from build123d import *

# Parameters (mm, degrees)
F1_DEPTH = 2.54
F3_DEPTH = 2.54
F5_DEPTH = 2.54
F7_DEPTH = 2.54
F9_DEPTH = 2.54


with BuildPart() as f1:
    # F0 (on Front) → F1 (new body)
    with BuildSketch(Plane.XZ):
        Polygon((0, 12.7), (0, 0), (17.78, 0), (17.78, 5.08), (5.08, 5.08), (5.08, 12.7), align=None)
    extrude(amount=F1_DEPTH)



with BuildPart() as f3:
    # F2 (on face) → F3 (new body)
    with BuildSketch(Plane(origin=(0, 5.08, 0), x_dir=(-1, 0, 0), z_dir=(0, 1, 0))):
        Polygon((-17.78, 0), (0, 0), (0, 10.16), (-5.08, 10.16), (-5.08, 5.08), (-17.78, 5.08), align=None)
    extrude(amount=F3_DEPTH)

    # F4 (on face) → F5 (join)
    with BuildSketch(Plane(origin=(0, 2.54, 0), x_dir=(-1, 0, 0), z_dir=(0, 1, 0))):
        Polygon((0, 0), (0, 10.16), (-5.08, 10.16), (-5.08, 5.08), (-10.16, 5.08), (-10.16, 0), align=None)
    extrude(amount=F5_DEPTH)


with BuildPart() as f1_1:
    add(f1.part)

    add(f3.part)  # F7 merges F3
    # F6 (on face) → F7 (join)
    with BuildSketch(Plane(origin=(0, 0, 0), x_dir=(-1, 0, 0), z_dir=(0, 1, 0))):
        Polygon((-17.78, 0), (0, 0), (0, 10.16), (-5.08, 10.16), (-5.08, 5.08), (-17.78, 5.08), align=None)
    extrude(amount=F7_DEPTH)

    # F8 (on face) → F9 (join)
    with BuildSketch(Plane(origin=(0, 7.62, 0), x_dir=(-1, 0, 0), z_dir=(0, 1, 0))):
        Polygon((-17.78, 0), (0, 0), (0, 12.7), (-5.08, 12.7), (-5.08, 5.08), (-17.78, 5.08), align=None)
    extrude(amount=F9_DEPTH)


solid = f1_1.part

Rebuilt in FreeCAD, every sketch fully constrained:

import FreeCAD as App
import Part
import Sketcher
from FreeCAD import Vector
Q = App.Units.Quantity

doc = App.newDocument("Part")
body = doc.addObject("PartDesign::Body", "Body")

# Sketch on XZ plane
sketch1 = body.newObject("Sketcher::SketchObject", "Sketch")
sketch1.AttachmentSupport = (doc.getObject("XZ_Plane"), [""])
sketch1.MapMode = "FlatFace"
sketch1.addGeometry([
    Part.LineSegment(Vector(0, 13, 0), Vector(0, 0, 0)),  # 0
    Part.LineSegment(Vector(0, 0, 0), Vector(18, 0, 0)),  # 1
    Part.LineSegment(Vector(18, 0, 0), Vector(18, 5, 0)),  # 2
    Part.LineSegment(Vector(18, 5, 0), Vector(5, 5, 0)),  # 3
    Part.LineSegment(Vector(5, 5, 0), Vector(5, 13, 0)),  # 4
    Part.LineSegment(Vector(5, 13, 0), Vector(0, 13, 0)),  # 5
], False)
sketch1.addConstraint([
    Sketcher.Constraint("Coincident", 0, 2, 1, 1),
    Sketcher.Constraint("Coincident", 1, 2, 2, 1),
    Sketcher.Constraint("Coincident", 2, 2, 3, 1),
    Sketcher.Constraint("Coincident", 3, 2, 4, 1),
    Sketcher.Constraint("Coincident", 4, 2, 5, 1),
    Sketcher.Constraint("Coincident", 5, 2, 0, 1),
    Sketcher.Constraint("Vertical", 0),
    Sketcher.Constraint("Horizontal", 1),
    Sketcher.Constraint("Vertical", 2),
    Sketcher.Constraint("Horizontal", 3),
    Sketcher.Constraint("Vertical", 4),
    Sketcher.Constraint("Horizontal", 5),
    Sketcher.Constraint("Coincident", 0, 2, -1, 1),
    Sketcher.Constraint("Equal", 3, 0),
    Sketcher.Constraint("Equal", 5, 2),
    Sketcher.Constraint("DistanceX", 1, 1, 1, 2, Q("0.7 in")),
    Sketcher.Constraint("DistanceX", 3, 2, 3, 1, Q("0.5 in")),
])
pad1 = body.newObject("PartDesign::Pad", "Pad")
pad1.Profile = sketch1
pad1.Length = Q("0.1 in")
body2 = doc.addObject("PartDesign::Body", "Body001")

# Sketch on XZ plane
sketch2 = body2.newObject("Sketcher::SketchObject", "Sketch001")
sketch2.AttachmentSupport = (doc.getObject("XZ_Plane001"), [""])
sketch2.MapMode = "FlatFace"
sketch2.AttachmentOffset = App.Placement(Vector(0, 0, -0.2 * 25.4), App.Rotation())
sketch2.addGeometry([
    Part.LineSegment(Vector(18, 0, 0), Vector(0, 0, 0)),  # 0
    Part.LineSegment(Vector(0, 0, 0), Vector(0, 10, 0)),  # 1
    Part.LineSegment(Vector(0, 10, 0), Vector(5, 10, 0)),  # 2
    Part.LineSegment(Vector(5, 10, 0), Vector(5, 5, 0)),  # 3
    Part.LineSegment(Vector(5, 5, 0), Vector(18, 5, 0)),  # 4
    Part.LineSegment(Vector(18, 5, 0), Vector(18, 0, 0)),  # 5
], False)
sketch2.addConstraint([
    Sketcher.Constraint("Coincident", 0, 2, 1, 1),
    Sketcher.Constraint("Coincident", 1, 2, 2, 1),
    Sketcher.Constraint("Coincident", 2, 2, 3, 1),
    Sketcher.Constraint("Coincident", 3, 2, 4, 1),
    Sketcher.Constraint("Coincident", 4, 2, 5, 1),
    Sketcher.Constraint("Coincident", 5, 2, 0, 1),
    Sketcher.Constraint("Horizontal", 0),
    Sketcher.Constraint("Vertical", 1),
    Sketcher.Constraint("Horizontal", 2),
    Sketcher.Constraint("Vertical", 3),
    Sketcher.Constraint("Horizontal", 4),
    Sketcher.Constraint("Vertical", 5),
    Sketcher.Constraint("Coincident", 0, 2, -1, 1),
    Sketcher.Constraint("Equal", 2, 3),
    Sketcher.Constraint("Equal", 3, 5),
    Sketcher.Constraint("DistanceX", 0, 2, 0, 1, Q("0.7 in")),
    Sketcher.Constraint("DistanceX", 2, 1, 2, 2, Q("0.2 in")),
])
pad2 = body2.newObject("PartDesign::Pad", "Pad001")
pad2.Profile = sketch2
pad2.Length = Q("0.1 in")
pad2.Reversed = True

# Sketch on XZ plane
sketch3 = body2.newObject("Sketcher::SketchObject", "Sketch002")
sketch3.AttachmentSupport = (doc.getObject("XZ_Plane001"), [""])
sketch3.MapMode = "FlatFace"
sketch3.AttachmentOffset = App.Placement(Vector(0, 0, -0.1 * 25.4), App.Rotation())
sketch3.addGeometry([
    Part.LineSegment(Vector(0, 0, 0), Vector(0, 10, 0)),  # 0
    Part.LineSegment(Vector(0, 10, 0), Vector(5, 10, 0)),  # 1
    Part.LineSegment(Vector(5, 10, 0), Vector(5, 5, 0)),  # 2
    Part.LineSegment(Vector(5, 5, 0), Vector(10, 5, 0)),  # 3
    Part.LineSegment(Vector(10, 5, 0), Vector(10, 0, 0)),  # 4
    Part.LineSegment(Vector(10, 0, 0), Vector(0, 0, 0)),  # 5
], False)
sketch3.addConstraint([
    Sketcher.Constraint("Coincident", 0, 2, 1, 1),
    Sketcher.Constraint("Coincident", 1, 2, 2, 1),
    Sketcher.Constraint("Coincident", 2, 2, 3, 1),
    Sketcher.Constraint("Coincident", 3, 2, 4, 1),
    Sketcher.Constraint("Coincident", 4, 2, 5, 1),
    Sketcher.Constraint("Coincident", 5, 2, 0, 1),
    Sketcher.Constraint("Vertical", 0),
    Sketcher.Constraint("Horizontal", 1),
    Sketcher.Constraint("Vertical", 2),
    Sketcher.Constraint("Horizontal", 3),
    Sketcher.Constraint("Vertical", 4),
    Sketcher.Constraint("Horizontal", 5),
    Sketcher.Constraint("Coincident", 5, 2, -1, 1),
    Sketcher.Constraint("Equal", 1, 3),
    Sketcher.Constraint("Equal", 5, 0),
    Sketcher.Constraint("Equal", 3, 2),
    Sketcher.Constraint("DistanceX", 1, 1, 1, 2, Q("0.2 in")),
])
pad3 = body2.newObject("PartDesign::Pad", "Pad002")
pad3.Profile = sketch3
pad3.Length = Q("0.1 in")
pad3.Reversed = True
body.AllowCompound = True
doc.recompute()

boolean = body.newObject("PartDesign::Boolean", "Boolean")
boolean.Type = "Fuse"
boolean.addObjects([body2])

# Sketch on XZ plane
sketch4 = body.newObject("Sketcher::SketchObject", "Sketch003")
sketch4.AttachmentSupport = (doc.getObject("XZ_Plane"), [""])
sketch4.MapMode = "FlatFace"
sketch4.addGeometry([
    Part.LineSegment(Vector(18, 0, 0), Vector(0, 0, 0)),  # 0
    Part.LineSegment(Vector(0, 0, 0), Vector(0, 10, 0)),  # 1
    Part.LineSegment(Vector(0, 10, 0), Vector(5, 10, 0)),  # 2
    Part.LineSegment(Vector(5, 10, 0), Vector(5, 5, 0)),  # 3
    Part.LineSegment(Vector(5, 5, 0), Vector(18, 5, 0)),  # 4
    Part.LineSegment(Vector(18, 5, 0), Vector(18, 0, 0)),  # 5
], False)
sketch4.addConstraint([
    Sketcher.Constraint("Coincident", 0, 2, 1, 1),
    Sketcher.Constraint("Coincident", 1, 2, 2, 1),
    Sketcher.Constraint("Coincident", 2, 2, 3, 1),
    Sketcher.Constraint("Coincident", 3, 2, 4, 1),
    Sketcher.Constraint("Coincident", 4, 2, 5, 1),
    Sketcher.Constraint("Coincident", 5, 2, 0, 1),
    Sketcher.Constraint("Horizontal", 0),
    Sketcher.Constraint("Vertical", 1),
    Sketcher.Constraint("Horizontal", 2),
    Sketcher.Constraint("Vertical", 3),
    Sketcher.Constraint("Horizontal", 4),
    Sketcher.Constraint("Vertical", 5),
    Sketcher.Constraint("Coincident", 0, 2, -1, 1),
    Sketcher.Constraint("Equal", 2, 3),
    Sketcher.Constraint("Equal", 3, 5),
    Sketcher.Constraint("DistanceX", 0, 2, 0, 1, Q("0.7 in")),
    Sketcher.Constraint("DistanceX", 2, 1, 2, 2, Q("0.2 in")),
])
pad4 = body.newObject("PartDesign::Pad", "Pad003")
pad4.Profile = sketch4
pad4.Length = Q("0.1 in")
pad4.Reversed = True

# Sketch on XZ plane
sketch5 = body.newObject("Sketcher::SketchObject", "Sketch004")
sketch5.AttachmentSupport = (doc.getObject("XZ_Plane"), [""])
sketch5.MapMode = "FlatFace"
sketch5.AttachmentOffset = App.Placement(Vector(0, 0, -0.3 * 25.4), App.Rotation())
sketch5.addGeometry([
    Part.LineSegment(Vector(18, 0, 0), Vector(0, 0, 0)),  # 0
    Part.LineSegment(Vector(0, 0, 0), Vector(0, 13, 0)),  # 1
    Part.LineSegment(Vector(0, 13, 0), Vector(5, 13, 0)),  # 2
    Part.LineSegment(Vector(5, 13, 0), Vector(5, 5, 0)),  # 3
    Part.LineSegment(Vector(5, 5, 0), Vector(18, 5, 0)),  # 4
    Part.LineSegment(Vector(18, 5, 0), Vector(18, 0, 0)),  # 5
], False)
sketch5.addConstraint([
    Sketcher.Constraint("Coincident", 0, 2, 1, 1),
    Sketcher.Constraint("Coincident", 1, 2, 2, 1),
    Sketcher.Constraint("Coincident", 2, 2, 3, 1),
    Sketcher.Constraint("Coincident", 3, 2, 4, 1),
    Sketcher.Constraint("Coincident", 4, 2, 5, 1),
    Sketcher.Constraint("Coincident", 5, 2, 0, 1),
    Sketcher.Constraint("Horizontal", 0),
    Sketcher.Constraint("Vertical", 1),
    Sketcher.Constraint("Horizontal", 2),
    Sketcher.Constraint("Vertical", 3),
    Sketcher.Constraint("Horizontal", 4),
    Sketcher.Constraint("Vertical", 5),
    Sketcher.Constraint("Coincident", 0, 2, -1, 1),
    Sketcher.Constraint("Equal", 4, 1),
    Sketcher.Constraint("Equal", 2, 5),
    Sketcher.Constraint("DistanceX", 0, 2, 0, 1, Q("0.7 in")),
    Sketcher.Constraint("DistanceX", 2, 1, 2, 2, Q("0.2 in")),
])
pad5 = body.newObject("PartDesign::Pad", "Pad004")
pad5.Profile = sketch5
pad5.Length = Q("0.1 in")
pad5.Reversed = True

doc.recompute()
